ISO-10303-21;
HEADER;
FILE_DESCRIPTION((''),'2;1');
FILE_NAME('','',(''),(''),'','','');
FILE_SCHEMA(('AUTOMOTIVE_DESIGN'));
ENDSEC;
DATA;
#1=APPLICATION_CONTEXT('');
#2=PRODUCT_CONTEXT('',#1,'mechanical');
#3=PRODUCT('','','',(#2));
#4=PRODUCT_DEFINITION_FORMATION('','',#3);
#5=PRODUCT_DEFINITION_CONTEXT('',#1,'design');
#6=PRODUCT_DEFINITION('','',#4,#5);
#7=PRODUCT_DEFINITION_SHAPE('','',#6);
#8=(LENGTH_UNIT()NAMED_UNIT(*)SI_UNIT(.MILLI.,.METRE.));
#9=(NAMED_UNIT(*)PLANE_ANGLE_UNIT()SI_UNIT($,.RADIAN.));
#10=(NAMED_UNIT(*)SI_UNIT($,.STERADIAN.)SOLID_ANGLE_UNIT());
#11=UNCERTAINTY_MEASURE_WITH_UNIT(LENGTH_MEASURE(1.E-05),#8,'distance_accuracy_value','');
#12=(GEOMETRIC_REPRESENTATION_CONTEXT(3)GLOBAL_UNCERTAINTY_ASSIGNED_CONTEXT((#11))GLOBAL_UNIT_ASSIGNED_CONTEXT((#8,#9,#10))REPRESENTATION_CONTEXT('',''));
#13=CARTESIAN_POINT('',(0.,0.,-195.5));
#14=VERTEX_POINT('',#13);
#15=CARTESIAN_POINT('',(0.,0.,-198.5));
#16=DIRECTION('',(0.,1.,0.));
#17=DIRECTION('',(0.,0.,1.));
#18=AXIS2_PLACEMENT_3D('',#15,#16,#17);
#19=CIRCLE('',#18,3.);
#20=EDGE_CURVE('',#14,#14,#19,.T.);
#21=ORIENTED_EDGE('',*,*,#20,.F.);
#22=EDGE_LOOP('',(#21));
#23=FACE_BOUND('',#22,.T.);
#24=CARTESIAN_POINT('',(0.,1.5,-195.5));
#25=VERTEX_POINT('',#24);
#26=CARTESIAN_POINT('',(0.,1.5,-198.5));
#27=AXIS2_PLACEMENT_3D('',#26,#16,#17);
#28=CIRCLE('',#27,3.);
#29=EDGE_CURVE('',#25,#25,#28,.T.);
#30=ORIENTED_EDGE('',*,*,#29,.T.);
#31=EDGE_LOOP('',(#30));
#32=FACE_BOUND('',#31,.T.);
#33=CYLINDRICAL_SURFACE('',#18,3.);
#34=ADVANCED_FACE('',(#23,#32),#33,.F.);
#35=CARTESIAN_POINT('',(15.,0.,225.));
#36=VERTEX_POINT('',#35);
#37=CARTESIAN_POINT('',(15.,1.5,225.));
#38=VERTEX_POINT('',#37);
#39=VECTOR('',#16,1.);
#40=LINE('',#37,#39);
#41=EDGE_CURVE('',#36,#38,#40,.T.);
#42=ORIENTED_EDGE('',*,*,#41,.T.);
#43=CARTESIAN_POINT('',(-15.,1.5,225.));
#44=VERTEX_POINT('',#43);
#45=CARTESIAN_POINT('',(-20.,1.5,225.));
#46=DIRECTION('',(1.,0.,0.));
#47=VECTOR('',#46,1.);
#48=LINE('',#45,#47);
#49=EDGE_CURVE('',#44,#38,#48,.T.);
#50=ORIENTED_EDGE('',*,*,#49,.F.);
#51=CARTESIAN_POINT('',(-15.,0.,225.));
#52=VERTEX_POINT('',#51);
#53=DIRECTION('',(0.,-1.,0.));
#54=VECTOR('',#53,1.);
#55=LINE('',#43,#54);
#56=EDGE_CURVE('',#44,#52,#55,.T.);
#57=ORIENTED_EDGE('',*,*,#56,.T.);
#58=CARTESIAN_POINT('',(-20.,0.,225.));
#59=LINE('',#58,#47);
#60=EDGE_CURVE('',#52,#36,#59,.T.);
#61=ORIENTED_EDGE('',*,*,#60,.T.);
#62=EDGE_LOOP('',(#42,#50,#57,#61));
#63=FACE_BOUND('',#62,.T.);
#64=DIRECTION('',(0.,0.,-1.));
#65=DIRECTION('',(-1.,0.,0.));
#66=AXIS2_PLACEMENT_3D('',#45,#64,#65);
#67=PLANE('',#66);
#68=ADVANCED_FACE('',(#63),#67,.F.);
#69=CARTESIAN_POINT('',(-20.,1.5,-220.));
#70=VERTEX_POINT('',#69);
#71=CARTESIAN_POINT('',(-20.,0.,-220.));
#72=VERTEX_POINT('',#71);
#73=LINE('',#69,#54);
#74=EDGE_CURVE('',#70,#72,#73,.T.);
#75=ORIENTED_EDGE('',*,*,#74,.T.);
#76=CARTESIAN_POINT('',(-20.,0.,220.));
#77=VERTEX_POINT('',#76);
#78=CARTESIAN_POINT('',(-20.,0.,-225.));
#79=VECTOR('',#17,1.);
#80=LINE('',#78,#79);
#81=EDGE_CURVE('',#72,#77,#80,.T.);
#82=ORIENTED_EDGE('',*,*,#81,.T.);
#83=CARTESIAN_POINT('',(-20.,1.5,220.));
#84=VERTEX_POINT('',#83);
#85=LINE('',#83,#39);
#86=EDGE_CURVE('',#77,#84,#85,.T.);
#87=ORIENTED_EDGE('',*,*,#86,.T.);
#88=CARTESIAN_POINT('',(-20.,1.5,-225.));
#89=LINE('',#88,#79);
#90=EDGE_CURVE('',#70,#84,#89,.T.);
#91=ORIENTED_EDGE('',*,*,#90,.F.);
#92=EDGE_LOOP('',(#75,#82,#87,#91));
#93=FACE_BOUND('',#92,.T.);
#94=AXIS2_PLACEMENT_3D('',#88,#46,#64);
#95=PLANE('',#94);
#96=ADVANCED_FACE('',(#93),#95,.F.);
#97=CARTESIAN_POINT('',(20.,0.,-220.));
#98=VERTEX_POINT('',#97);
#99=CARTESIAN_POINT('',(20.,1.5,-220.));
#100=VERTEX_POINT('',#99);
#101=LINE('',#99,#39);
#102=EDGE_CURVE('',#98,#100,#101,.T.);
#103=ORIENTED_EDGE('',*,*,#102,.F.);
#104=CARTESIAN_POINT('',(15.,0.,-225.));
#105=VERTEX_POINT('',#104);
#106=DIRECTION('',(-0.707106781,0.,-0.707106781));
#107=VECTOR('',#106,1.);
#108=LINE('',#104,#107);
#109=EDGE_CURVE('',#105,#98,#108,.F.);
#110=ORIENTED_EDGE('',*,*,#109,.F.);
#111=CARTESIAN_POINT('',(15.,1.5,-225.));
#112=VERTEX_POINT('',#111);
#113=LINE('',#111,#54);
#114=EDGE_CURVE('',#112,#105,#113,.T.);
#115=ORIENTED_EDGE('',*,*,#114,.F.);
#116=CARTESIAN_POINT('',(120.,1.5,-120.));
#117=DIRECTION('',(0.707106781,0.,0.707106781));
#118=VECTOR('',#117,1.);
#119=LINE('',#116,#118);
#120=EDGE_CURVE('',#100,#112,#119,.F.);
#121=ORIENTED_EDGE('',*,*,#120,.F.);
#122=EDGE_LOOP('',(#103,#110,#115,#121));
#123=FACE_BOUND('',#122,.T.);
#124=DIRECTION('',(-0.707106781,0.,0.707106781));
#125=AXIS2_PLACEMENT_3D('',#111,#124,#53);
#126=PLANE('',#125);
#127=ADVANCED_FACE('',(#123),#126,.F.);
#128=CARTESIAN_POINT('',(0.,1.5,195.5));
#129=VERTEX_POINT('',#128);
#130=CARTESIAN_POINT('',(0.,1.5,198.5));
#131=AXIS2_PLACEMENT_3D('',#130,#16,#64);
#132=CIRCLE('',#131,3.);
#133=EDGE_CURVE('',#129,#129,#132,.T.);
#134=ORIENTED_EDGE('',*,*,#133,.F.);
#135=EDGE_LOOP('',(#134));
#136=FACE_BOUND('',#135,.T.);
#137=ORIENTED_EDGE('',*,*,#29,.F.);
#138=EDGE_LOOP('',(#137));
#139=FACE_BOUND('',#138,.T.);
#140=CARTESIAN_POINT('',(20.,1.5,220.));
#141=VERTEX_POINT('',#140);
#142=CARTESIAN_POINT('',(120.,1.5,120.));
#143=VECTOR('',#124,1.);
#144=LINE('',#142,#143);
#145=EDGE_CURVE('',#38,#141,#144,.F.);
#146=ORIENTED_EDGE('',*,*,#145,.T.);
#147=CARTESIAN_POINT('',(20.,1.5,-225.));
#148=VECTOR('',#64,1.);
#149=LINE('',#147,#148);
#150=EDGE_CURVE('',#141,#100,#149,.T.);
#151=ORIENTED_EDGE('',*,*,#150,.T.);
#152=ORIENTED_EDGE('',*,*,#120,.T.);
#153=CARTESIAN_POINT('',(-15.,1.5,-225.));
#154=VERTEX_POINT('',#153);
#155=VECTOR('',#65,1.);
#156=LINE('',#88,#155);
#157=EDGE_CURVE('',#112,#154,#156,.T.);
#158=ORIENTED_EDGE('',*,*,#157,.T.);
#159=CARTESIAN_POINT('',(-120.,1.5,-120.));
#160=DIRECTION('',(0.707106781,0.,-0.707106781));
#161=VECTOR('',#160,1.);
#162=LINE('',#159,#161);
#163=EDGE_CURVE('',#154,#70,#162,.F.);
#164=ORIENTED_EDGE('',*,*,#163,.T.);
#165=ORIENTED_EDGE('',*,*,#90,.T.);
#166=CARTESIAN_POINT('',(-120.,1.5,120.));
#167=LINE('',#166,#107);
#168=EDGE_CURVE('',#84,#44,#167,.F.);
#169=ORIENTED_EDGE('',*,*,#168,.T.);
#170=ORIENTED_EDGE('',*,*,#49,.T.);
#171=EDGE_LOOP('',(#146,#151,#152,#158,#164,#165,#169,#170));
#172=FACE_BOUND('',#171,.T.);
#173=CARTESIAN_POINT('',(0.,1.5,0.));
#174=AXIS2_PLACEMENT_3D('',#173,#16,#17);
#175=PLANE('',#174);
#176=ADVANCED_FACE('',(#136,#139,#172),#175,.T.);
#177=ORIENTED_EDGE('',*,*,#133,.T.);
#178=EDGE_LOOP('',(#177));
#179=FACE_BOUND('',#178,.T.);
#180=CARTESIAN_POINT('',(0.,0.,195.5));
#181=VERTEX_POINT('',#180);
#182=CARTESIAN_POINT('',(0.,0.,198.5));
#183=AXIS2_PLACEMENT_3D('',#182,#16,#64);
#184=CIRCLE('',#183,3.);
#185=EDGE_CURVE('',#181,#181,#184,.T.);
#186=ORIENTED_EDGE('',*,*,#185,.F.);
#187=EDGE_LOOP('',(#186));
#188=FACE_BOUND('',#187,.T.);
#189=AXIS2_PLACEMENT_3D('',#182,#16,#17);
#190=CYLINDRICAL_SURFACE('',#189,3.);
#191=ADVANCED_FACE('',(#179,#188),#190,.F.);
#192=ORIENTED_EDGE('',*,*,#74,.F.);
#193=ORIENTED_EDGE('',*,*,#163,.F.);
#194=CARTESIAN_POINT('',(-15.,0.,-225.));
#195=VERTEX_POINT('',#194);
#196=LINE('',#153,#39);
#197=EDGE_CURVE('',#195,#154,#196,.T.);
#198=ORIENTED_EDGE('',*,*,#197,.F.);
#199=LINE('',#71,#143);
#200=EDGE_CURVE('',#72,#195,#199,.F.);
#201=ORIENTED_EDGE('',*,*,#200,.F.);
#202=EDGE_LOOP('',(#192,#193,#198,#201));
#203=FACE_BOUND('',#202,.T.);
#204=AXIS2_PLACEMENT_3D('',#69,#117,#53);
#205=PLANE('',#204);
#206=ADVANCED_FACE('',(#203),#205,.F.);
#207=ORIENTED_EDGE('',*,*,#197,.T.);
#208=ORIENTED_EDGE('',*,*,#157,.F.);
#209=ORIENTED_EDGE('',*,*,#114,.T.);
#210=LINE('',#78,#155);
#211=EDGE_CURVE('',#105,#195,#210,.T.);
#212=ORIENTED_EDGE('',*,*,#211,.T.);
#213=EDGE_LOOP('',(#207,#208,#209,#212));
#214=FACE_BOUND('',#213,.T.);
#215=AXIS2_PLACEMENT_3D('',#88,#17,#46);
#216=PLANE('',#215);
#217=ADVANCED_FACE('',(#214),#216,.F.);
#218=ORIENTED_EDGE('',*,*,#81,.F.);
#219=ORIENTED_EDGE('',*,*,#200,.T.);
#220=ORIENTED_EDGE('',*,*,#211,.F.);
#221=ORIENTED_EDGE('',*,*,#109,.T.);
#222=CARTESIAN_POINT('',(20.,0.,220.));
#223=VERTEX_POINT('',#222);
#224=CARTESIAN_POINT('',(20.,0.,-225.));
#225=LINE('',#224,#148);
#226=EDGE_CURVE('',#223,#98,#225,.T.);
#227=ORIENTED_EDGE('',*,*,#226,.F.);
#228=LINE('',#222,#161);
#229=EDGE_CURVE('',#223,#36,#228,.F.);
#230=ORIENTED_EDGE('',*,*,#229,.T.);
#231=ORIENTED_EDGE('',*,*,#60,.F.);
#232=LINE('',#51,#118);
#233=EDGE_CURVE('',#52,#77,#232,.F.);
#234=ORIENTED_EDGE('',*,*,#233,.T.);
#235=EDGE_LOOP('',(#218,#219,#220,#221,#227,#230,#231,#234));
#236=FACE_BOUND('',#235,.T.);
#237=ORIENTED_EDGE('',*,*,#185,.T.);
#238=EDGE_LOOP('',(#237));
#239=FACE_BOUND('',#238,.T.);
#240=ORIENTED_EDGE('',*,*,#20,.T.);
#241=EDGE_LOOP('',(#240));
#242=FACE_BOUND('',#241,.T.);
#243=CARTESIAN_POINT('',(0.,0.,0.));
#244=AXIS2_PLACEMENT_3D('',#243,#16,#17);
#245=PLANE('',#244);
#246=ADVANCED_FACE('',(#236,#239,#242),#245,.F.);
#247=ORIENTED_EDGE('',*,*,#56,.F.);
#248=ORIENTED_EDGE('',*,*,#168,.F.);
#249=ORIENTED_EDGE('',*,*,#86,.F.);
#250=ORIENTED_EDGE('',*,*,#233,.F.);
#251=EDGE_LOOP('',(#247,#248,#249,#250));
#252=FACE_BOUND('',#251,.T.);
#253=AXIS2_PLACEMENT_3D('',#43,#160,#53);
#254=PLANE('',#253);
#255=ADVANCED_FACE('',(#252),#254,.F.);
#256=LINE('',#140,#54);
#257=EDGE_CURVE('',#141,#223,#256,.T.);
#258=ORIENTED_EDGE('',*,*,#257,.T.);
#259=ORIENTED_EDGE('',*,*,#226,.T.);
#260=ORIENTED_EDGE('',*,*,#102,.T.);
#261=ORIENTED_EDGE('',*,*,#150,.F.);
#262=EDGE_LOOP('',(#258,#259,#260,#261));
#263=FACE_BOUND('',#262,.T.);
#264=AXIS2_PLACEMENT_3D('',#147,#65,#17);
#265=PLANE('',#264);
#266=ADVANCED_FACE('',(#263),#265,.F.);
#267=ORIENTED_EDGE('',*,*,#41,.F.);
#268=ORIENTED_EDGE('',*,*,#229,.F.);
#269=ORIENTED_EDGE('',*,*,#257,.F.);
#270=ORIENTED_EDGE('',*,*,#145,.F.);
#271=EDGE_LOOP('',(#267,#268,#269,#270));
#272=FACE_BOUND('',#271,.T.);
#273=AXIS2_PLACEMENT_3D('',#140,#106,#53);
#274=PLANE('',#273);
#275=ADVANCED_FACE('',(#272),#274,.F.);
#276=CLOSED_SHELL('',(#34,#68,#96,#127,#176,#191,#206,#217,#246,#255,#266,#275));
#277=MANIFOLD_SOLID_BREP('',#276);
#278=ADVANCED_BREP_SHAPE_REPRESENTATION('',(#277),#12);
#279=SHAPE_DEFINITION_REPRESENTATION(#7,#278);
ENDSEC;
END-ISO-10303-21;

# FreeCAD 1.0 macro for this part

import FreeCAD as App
import Part
import Sketcher
from FreeCAD import Vector


def edges_at(feature, points):
    """Names of the edges that pass closest to the given points."""
    edges = feature.Shape.Edges
    near = lambda p: min(range(len(edges)), key=lambda i: edges[i].distToShape(Part.Vertex(*p))[0])
    return sorted({f"Edge{near(p) + 1}" for p in points})

doc = App.newDocument("Part")
body = doc.addObject("PartDesign::Body", "Body")

# Sketch on XZ plane
sketch1 = body.newObject("Sketcher::SketchObject", "Sketch")
sketch1.AttachmentSupport = (doc.getObject("XZ_Plane"), [""])
sketch1.MapMode = "FlatFace"
sketch1.addGeometry([
    Part.LineSegment(Vector(-20, -225, 0), Vector(-20, 225, 0)),
    Part.LineSegment(Vector(-20, 225, 0), Vector(20, 225, 0)),
    Part.LineSegment(Vector(20, 225, 0), Vector(20, -225, 0)),
    Part.LineSegment(Vector(20, -225, 0), Vector(-20, -225, 0)),
], False)
sketch1.addConstraint([
    Sketcher.Constraint("Coincident", 0, 2, 1, 1),
    Sketcher.Constraint("Coincident", 1, 2, 2, 1),
    Sketcher.Constraint("Coincident", 2, 2, 3, 1),
    Sketcher.Constraint("Coincident", 3, 2, 0, 1),
    Sketcher.Constraint("Vertical", 0),
    Sketcher.Constraint("Horizontal", 1),
    Sketcher.Constraint("Vertical", 2),
    Sketcher.Constraint("Horizontal", 3),
    Sketcher.Constraint("Symmetric", 0, 2, 2, 2, -1, 1),
    Sketcher.Constraint("DistanceX", 1, 1, 1, 2, 40.0),
    Sketcher.Constraint("DistanceY", 0, 1, 0, 2, 450.0),
])
pad1 = body.newObject("PartDesign::Pad", "Pad")
pad1.Profile = sketch1
pad1.Length = 1.5
pad1.Reversed = True
doc.recompute()

chamfer = body.newObject("PartDesign::Chamfer", "Chamfer")
chamfer.Base = (pad1, edges_at(pad1, [
    (20, 0.75, 225),
    (-20, 0.75, 225),
    (-20, 0.75, -225),
    (20, 0.75, -225),
]))
chamfer.Size = 5

# Sketch on XZ plane
sketch2 = body.newObject("Sketcher::SketchObject", "Sketch001")
sketch2.AttachmentSupport = (doc.getObject("XZ_Plane"), [""])
sketch2.MapMode = "FlatFace"
sketch2.AttachmentOffset = App.Placement(Vector(0, 0, -1.5), App.Rotation())
sketch2.addGeometry([
    Part.Circle(Vector(0, -198.5, 0), Vector(0, 0, 1), 3),
    Part.Circle(Vector(0, 198.5, 0), Vector(0, 0, 1), 3),
], False)
sketch2.addConstraint([
    Sketcher.Constraint("Equal", 0, 1),
    Sketcher.Constraint("Symmetric", 0, 3, 1, 3, -1, 1),
    Sketcher.Constraint("PointOnObject", 0, 3, -2),
    Sketcher.Constraint("Diameter", 0, 6.0),
    Sketcher.Constraint("DistanceY", 0, 3, 1, 3, 397.0),
])
pocket1 = body.newObject("PartDesign::Pocket", "Pocket")
pocket1.Profile = sketch2
pocket1.Type = "ThroughAll"
pocket1.Reversed = True

doc.recompute()
